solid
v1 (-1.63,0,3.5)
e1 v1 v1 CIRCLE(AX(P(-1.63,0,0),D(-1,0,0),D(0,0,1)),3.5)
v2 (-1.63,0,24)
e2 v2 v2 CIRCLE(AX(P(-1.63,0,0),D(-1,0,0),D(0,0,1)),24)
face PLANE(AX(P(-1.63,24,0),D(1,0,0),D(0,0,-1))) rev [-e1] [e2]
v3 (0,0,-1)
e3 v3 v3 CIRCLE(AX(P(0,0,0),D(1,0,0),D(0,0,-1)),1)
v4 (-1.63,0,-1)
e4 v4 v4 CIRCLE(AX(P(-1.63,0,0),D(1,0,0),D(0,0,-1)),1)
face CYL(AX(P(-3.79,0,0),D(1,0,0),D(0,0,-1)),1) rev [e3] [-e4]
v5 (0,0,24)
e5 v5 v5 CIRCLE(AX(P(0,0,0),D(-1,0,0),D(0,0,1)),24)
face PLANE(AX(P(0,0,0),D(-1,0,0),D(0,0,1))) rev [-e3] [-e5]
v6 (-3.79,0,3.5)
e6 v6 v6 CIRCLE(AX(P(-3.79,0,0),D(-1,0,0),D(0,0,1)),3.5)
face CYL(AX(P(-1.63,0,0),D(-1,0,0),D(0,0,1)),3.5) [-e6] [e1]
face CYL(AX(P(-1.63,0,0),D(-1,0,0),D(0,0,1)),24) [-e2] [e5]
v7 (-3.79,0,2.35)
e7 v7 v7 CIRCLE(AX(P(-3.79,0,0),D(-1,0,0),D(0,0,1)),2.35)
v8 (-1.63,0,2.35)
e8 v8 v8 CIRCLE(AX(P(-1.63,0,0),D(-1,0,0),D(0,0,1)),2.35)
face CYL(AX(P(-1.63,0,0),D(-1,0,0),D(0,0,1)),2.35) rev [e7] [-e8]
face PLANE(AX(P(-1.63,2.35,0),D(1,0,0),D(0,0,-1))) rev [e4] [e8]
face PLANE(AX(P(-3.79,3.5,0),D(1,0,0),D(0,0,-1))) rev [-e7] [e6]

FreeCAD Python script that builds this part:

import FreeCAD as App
import Part
import Sketcher
from FreeCAD import Vector
Q = App.Units.Quantity

doc = App.newDocument("Part")
params = doc.addObject("Spreadsheet::Sheet", "Params")
for row, (alias, value) in enumerate([
    ("sketch1_height", "24 mm"),
    ("sketch1_height2", "20.5 mm"),
    ("sketch1_width", "1.63 mm"),
    ("sketch1_width2", "2.16 mm"),
    ("sketch1_height3", "1.15 mm"),
    ("revolution_angle", "360 deg"),
    ("sketch2_diameter", "2 mm"),
], start=1):
    params.set(f"A{row}", alias)
    params.set(f"B{row}", "=" + value)
    params.setAlias(f"B{row}", alias)

body = doc.addObject("PartDesign::Body", "Body")

sketch1 = body.newObject("Sketcher::SketchObject", "Sketch")
sketch1.AttachmentSupport = (doc.getObject("XY_Plane"), [""])
sketch1.MapMode = "FlatFace"
sketch1.addGeometry([
    Part.LineSegment(Vector(0, 0, 0), Vector(0, 24, 0)),
    Part.LineSegment(Vector(0, 24, 0), Vector(-1.63, 24, 0)),
    Part.LineSegment(Vector(-1.63, 24, 0), Vector(-1.63, 3.5, 0)),
    Part.LineSegment(Vector(-1.63, 3.5, 0), Vector(-3.79, 3.5, 0)),
    Part.LineSegment(Vector(-3.79, 3.5, 0), Vector(-3.79, 2.35, 0)),
    Part.LineSegment(Vector(-3.79, 2.35, 0), Vector(-1.63, 2.35, 0)),
    Part.LineSegment(Vector(-1.63, 2.35, 0), Vector(-1.63, 0, 0)),
    Part.LineSegment(Vector(-1.63, 0, 0), Vector(0, 0, 0)),
], False)
sketch1.addConstraint([
    Sketcher.Constraint("Coincident", 0, 2, 1, 1),
    Sketcher.Constraint("Coincident", 1, 2, 2, 1),
    Sketcher.Constraint("Coincident", 2, 2, 3, 1),
    Sketcher.Constraint("Coincident", 3, 2, 4, 1),
    Sketcher.Constraint("Coincident", 4, 2, 5, 1),
    Sketcher.Constraint("Coincident", 5, 2, 6, 1),
    Sketcher.Constraint("Coincident", 6, 2, 7, 1),
    Sketcher.Constraint("Coincident", 7, 2, 0, 1),
    Sketcher.Constraint("Vertical", 0),
    Sketcher.Constraint("Horizontal", 1),
    Sketcher.Constraint("Vertical", 2),
    Sketcher.Constraint("Horizontal", 3),
    Sketcher.Constraint("Vertical", 4),
    Sketcher.Constraint("Horizontal", 5),
    Sketcher.Constraint("Vertical", 6),
    Sketcher.Constraint("Horizontal", 7),
    Sketcher.Constraint("Coincident", 7, 2, -1, 1),
    Sketcher.Constraint("Vertical", 2, 2, 5, 2),
    Sketcher.Constraint("DistanceY", 0, 1, 0, 2, Q("24 mm")),
    Sketcher.Constraint("DistanceY", 2, 2, 2, 1, Q("20.5 mm")),
    Sketcher.Constraint("DistanceX", 1, 2, 1, 1, Q("1.63 mm")),
    Sketcher.Constraint("DistanceX", 3, 2, 3, 1, Q("2.16 mm")),
    Sketcher.Constraint("DistanceY", 4, 2, 4, 1, Q("1.15 mm")),
])
sketch1.setExpression("Constraints[18]", "Params.sketch1_height")
sketch1.setExpression("Constraints[19]", "Params.sketch1_height2")
sketch1.setExpression("Constraints[20]", "Params.sketch1_width")
sketch1.setExpression("Constraints[21]", "Params.sketch1_width2")
sketch1.setExpression("Constraints[22]", "Params.sketch1_height3")
revolution = body.newObject("PartDesign::Revolution", "Revolution")
revolution.Profile = sketch1
revolution.ReferenceAxis = (sketch1, ["H_Axis"])
revolution.setExpression("Angle", "Params.revolution_angle")

sketch2 = body.newObject("Sketcher::SketchObject", "Sketch001")
sketch2.AttachmentSupport = (doc.getObject("YZ_Plane"), [""])
sketch2.MapMode = "FlatFace"
sketch2.addGeometry(Part.Circle(Vector(0, 0, 0), Vector(0, 0, 1), 1), False)
sketch2.addConstraint([
    Sketcher.Constraint("Coincident", 0, 3, -1, 1),
    Sketcher.Constraint("Diameter", 0, Q("2 mm")),
])
sketch2.setExpression("Constraints[1]", "Params.sketch2_diameter")
pocket1 = body.newObject("PartDesign::Pocket", "Pocket")
pocket1.Profile = sketch2
pocket1.Type = "ThroughAll"

doc.recompute()
